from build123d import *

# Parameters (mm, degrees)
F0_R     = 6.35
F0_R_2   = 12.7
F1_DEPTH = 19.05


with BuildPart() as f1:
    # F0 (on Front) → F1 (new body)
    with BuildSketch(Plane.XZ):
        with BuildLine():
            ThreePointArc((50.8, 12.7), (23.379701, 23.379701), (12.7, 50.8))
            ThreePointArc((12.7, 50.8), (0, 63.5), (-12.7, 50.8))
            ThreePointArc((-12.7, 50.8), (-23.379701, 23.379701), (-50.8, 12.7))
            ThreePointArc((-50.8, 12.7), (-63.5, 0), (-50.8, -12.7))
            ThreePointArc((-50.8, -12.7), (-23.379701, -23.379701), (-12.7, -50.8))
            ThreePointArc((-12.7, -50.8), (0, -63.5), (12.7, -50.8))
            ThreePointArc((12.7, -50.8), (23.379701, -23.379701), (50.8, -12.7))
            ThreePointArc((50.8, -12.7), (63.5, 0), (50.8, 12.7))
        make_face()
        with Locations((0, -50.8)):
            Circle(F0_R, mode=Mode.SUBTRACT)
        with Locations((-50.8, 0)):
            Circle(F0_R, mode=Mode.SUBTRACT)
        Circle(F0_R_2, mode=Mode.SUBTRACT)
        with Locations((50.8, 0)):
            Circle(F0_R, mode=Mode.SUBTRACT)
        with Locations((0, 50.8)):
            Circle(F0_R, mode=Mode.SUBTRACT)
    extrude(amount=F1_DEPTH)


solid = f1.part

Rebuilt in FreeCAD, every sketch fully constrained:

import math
import FreeCAD as App
import Part
import Sketcher
from FreeCAD import Vector
Q = App.Units.Quantity

doc = App.newDocument("Part")
params = doc.addObject("Spreadsheet::Sheet", "Params")
for row, (alias, value) in enumerate([
    ("sketch1_diameter", "1 in"),
    ("sketch1_diameter2", "0.5 in"),
    ("sketch1_radius", "1.4400001 in"),
    ("pad1_length", "0.75 in"),
], start=1):
    params.set(f"A{row}", alias)
    params.set(f"B{row}", "=" + value)
    params.setAlias(f"B{row}", alias)

body = doc.addObject("PartDesign::Body", "Body")

# Sketch on XZ plane
sketch1 = doc.addObject("Sketcher::SketchObject", "Sketch")
body.addObject(sketch1)
sketch1.AttachmentSupport = (doc.XZ_Plane, [""])
sketch1.MapMode = "FlatFace"
sketch1.addGeometry(Part.ArcOfCircle(Part.Circle(Vector(49.24284, 49.24284, 0), Vector(0, 0, 1), 36.576001), math.radians(177.559993), math.radians(272.440007)), False)
sketch1.addGeometry(Part.ArcOfCircle(Part.Circle(Vector(0, 50.8, 0), Vector(0, 0, 1), 12.7), math.radians(0), math.radians(180)), False)
sketch1.addGeometry(Part.ArcOfCircle(Part.Circle(Vector(-49.24284, 49.24284, 0), Vector(0, 0, 1), 36.576001), math.radians(-92.440007), math.radians(2.440007)), False)
sketch1.addGeometry(Part.ArcOfCircle(Part.Circle(Vector(-50.8, 0, 0), Vector(0, 0, 1), 12.7), math.radians(90), math.radians(270)), False)
sketch1.addGeometry(Part.ArcOfCircle(Part.Circle(Vector(-49.24284, -49.24284, 0), Vector(0, 0, 1), 36.576001), math.radians(-2.440007), math.radians(92.440007)), False)
sketch1.addGeometry(Part.ArcOfCircle(Part.Circle(Vector(0, -50.8, 0), Vector(0, 0, 1), 12.7), math.radians(180), math.radians(360)), False)
sketch1.addGeometry(Part.ArcOfCircle(Part.Circle(Vector(49.24284, -49.24284, 0), Vector(0, 0, 1), 36.576001), math.radians(87.559993), math.radians(182.440007)), False)
sketch1.addGeometry(Part.ArcOfCircle(Part.Circle(Vector(50.8, 0, 0), Vector(0, 0, 1), 12.7), math.radians(-90), math.radians(90)), False)
sketch1.addGeometry(Part.Circle(Vector(0, -50.8, 0), Vector(0, 0, 1), 6.35), False)
sketch1.addGeometry(Part.Circle(Vector(-50.8, 0, 0), Vector(0, 0, 1), 6.35), False)
sketch1.addGeometry(Part.Circle(Vector(0, 0, 0), Vector(0, 0, 1), 12.7), False)
sketch1.addGeometry(Part.Circle(Vector(50.8, 0, 0), Vector(0, 0, 1), 6.35), False)
sketch1.addGeometry(Part.Circle(Vector(0, 50.8, 0), Vector(0, 0, 1), 6.35), False)
sketch1.addConstraint(Sketcher.Constraint("Coincident", 0, 1, 1, 1))
sketch1.addConstraint(Sketcher.Constraint("Coincident", 1, 2, 2, 2))
sketch1.addConstraint(Sketcher.Constraint("Coincident", 2, 1, 3, 1))
sketch1.addConstraint(Sketcher.Constraint("Coincident", 3, 2, 4, 2))
sketch1.addConstraint(Sketcher.Constraint("Coincident", 4, 1, 5, 1))
sketch1.addConstraint(Sketcher.Constraint("Coincident", 5, 2, 6, 2))
sketch1.addConstraint(Sketcher.Constraint("Coincident", 6, 1, 7, 1))
sketch1.addConstraint(Sketcher.Constraint("Coincident", 7, 2, 0, 2))
sketch1.addConstraint(Sketcher.Constraint("Coincident", 10, 3, -1, 1))
sketch1.addConstraint(Sketcher.Constraint("Coincident", 8, 3, 5, 3))
sketch1.addConstraint(Sketcher.Constraint("Coincident", 9, 3, 3, 3))
sketch1.addConstraint(Sketcher.Constraint("Coincident", 11, 3, 7, 3))
sketch1.addConstraint(Sketcher.Constraint("Coincident", 12, 3, 1, 3))
sketch1.addConstraint(Sketcher.Constraint("Equal", 0, 2))
sketch1.addConstraint(Sketcher.Constraint("Equal", 1, 3))
sketch1.addConstraint(Sketcher.Constraint("Equal", 2, 4))
sketch1.addConstraint(Sketcher.Constraint("Equal", 3, 5))
sketch1.addConstraint(Sketcher.Constraint("Equal", 4, 6))
sketch1.addConstraint(Sketcher.Constraint("Equal", 5, 7))
sketch1.addConstraint(Sketcher.Constraint("Equal", 8, 9))
sketch1.addConstraint(Sketcher.Constraint("Equal", 7, 10))
sketch1.addConstraint(Sketcher.Constraint("Equal", 9, 11))
sketch1.addConstraint(Sketcher.Constraint("Equal", 11, 12))
sketch1.addConstraint(Sketcher.Constraint("Symmetric", 0, 3, 4, 3, -1, 1))
sketch1.addConstraint(Sketcher.Constraint("Symmetric", 1, 3, 5, 3, -1, 1))
sketch1.addConstraint(Sketcher.Constraint("Symmetric", 2, 3, 6, 3, -1, 1))
sketch1.addConstraint(Sketcher.Constraint("Symmetric", 3, 3, 7, 3, -1, 1))
sketch1.addConstraint(Sketcher.Constraint("Symmetric", 0, 3, 2, 3, -2))
sketch1.addConstraint(Sketcher.Constraint("PointOnObject", 1, 3, -2))
sketch1.addConstraint(Sketcher.Constraint("PointOnObject", 3, 3, -1))
sketch1.addConstraint(Sketcher.Constraint("Horizontal", 12, 3, 0, 1))
sketch1.addConstraint(Sketcher.Constraint("Vertical", 9, 3, 2, 1))
sketch1.addConstraint(Sketcher.Constraint("Diameter", 10, Q("1 in")))
sketch1.addConstraint(Sketcher.Constraint("Diameter", 8, Q("0.5 in")))
sketch1.addConstraint(Sketcher.Constraint("Radius", 0, Q("1.4400001 in")))
sketch1.addConstraint(Sketcher.Constraint("DistanceY", -1, 1, 1, 3, Q("2 in")))
sketch1.addConstraint(Sketcher.Constraint("DistanceX", 3, 3, -1, 1, Q("2 in")))
sketch1.setExpression("Constraints[32]", "Params.sketch1_diameter")
sketch1.setExpression("Constraints[33]", "Params.sketch1_diameter2")
sketch1.setExpression("Constraints[34]", "Params.sketch1_radius")
pad1 = doc.addObject("PartDesign::Pad", "Pad")
body.addObject(pad1)
pad1.Profile = sketch1
pad1.setExpression("Length", "Params.pad1_length")

doc.recompute()
